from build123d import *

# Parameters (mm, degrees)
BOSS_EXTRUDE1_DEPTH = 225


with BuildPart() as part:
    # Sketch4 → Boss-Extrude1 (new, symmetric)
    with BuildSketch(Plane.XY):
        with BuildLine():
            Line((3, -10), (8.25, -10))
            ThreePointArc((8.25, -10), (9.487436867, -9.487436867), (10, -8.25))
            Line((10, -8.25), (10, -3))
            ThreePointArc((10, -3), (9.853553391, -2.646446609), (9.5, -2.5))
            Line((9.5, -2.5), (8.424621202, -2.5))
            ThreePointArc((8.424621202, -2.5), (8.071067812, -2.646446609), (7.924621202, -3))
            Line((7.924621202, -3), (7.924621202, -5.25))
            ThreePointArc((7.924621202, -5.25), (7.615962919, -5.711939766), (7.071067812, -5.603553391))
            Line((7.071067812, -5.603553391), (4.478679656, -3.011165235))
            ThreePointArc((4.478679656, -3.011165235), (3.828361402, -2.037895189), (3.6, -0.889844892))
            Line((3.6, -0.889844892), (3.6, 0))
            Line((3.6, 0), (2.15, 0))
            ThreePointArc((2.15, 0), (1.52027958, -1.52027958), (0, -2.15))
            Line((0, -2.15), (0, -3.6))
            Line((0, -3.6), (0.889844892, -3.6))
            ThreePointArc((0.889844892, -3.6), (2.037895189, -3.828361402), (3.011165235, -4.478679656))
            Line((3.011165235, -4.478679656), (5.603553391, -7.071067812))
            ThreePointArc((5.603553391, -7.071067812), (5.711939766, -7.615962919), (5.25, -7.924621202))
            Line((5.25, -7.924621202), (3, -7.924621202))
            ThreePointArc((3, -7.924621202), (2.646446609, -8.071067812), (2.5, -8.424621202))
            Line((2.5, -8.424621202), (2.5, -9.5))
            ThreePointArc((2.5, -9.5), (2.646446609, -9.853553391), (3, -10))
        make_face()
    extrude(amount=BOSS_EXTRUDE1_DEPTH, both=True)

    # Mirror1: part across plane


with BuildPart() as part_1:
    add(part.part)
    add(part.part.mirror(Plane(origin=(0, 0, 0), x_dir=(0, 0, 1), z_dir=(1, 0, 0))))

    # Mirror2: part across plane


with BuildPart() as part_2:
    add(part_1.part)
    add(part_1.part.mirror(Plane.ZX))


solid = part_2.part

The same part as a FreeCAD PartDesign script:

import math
import FreeCAD as App
import Part
import Sketcher
from FreeCAD import Vector

doc = App.newDocument("Part")
params = doc.addObject("Spreadsheet::Sheet", "Params")
for row, (alias, value) in enumerate([
    ("sketch1_radius", "3 mm"),
    ("sketch1_radius2", "0.5 mm"),
    ("sketch1_radius3", "1.75 mm"),
    ("sketch1_radius4", "2.15 mm"),
    ("sketch1_width", "1.45 mm"),
    ("pad1_length", "450 mm"),
], start=1):
    params.set(f"A{row}", alias)
    params.set(f"B{row}", "=" + value)
    params.setAlias(f"B{row}", alias)

body = doc.addObject("PartDesign::Body", "Body")

# Sketch on XY plane
sketch1 = body.newObject("Sketcher::SketchObject", "Sketch")
sketch1.AttachmentSupport = (doc.getObject("XY_Plane"), [""])
sketch1.MapMode = "FlatFace"
sketch1.addGeometry([
    Part.LineSegment(Vector(3, -10, 0), Vector(8.25, -10, 0)),  # 0
    Part.ArcOfCircle(Part.Circle(Vector(8.25, -8.25, 0), Vector(0, 0, 1), 1.75), math.radians(-90), math.radians(0)),  # 1
    Part.LineSegment(Vector(10, -8.25, 0), Vector(10, -3, 0)),  # 2
    Part.ArcOfCircle(Part.Circle(Vector(9.5, -3, 0), Vector(0, 0, 1), 0.5), math.radians(0), math.radians(90)),  # 3
    Part.LineSegment(Vector(9.5, -2.5, 0), Vector(8.424621, -2.5, 0)),  # 4
    Part.ArcOfCircle(Part.Circle(Vector(8.424621, -3, 0), Vector(0, 0, 1), 0.5), math.radians(90), math.radians(180)),  # 5
    Part.LineSegment(Vector(7.924621, -3, 0), Vector(7.924621, -5.25, 0)),  # 6
    Part.ArcOfCircle(Part.Circle(Vector(7.424621, -5.25, 0), Vector(0, 0, 1), 0.5), math.radians(-135), math.radians(0)),  # 7
    Part.LineSegment(Vector(7.071068, -5.603553, 0), Vector(4.47868, -3.011165, 0)),  # 8
    Part.ArcOfCircle(Part.Circle(Vector(6.6, -0.889845, 0), Vector(0, 0, 1), 3), math.radians(180), math.radians(225)),  # 9
    Part.LineSegment(Vector(3.6, -0.889845, 0), Vector(3.6, 0, 0)),  # 10
    Part.LineSegment(Vector(3.6, 0, 0), Vector(2.15, 0, 0)),  # 11
    Part.ArcOfCircle(Part.Circle(Vector(0, 0, 0), Vector(0, 0, 1), 2.15), math.radians(-90), math.radians(0)),  # 12
    Part.LineSegment(Vector(0, -2.15, 0), Vector(0, -3.6, 0)),  # 13
    Part.LineSegment(Vector(0, -3.6, 0), Vector(0.889845, -3.6, 0)),  # 14
    Part.ArcOfCircle(Part.Circle(Vector(0.889845, -6.6, 0), Vector(0, 0, 1), 3), math.radians(45), math.radians(90)),  # 15
    Part.LineSegment(Vector(3.011165, -4.47868, 0), Vector(5.603553, -7.071068, 0)),  # 16
    Part.ArcOfCircle(Part.Circle(Vector(5.25, -7.424621, 0), Vector(0, 0, 1), 0.5), math.radians(-90), math.radians(45)),  # 17
    Part.LineSegment(Vector(5.25, -7.924621, 0), Vector(3, -7.924621, 0)),  # 18
    Part.ArcOfCircle(Part.Circle(Vector(3, -8.424621, 0), Vector(0, 0, 1), 0.5), math.radians(90), math.radians(180)),  # 19
    Part.LineSegment(Vector(2.5, -8.424621, 0), Vector(2.5, -9.5, 0)),  # 20
    Part.ArcOfCircle(Part.Circle(Vector(3, -9.5, 0), Vector(0, 0, 1), 0.5), math.radians(180), math.radians(270)),  # 21
], False)
sketch1.addConstraint([
    Sketcher.Constraint("Tangent", 0, 2, 1, 1),
    Sketcher.Constraint("Tangent", 1, 2, 2, 1),
    Sketcher.Constraint("Tangent", 2, 2, 3, 1),
    Sketcher.Constraint("Tangent", 3, 2, 4, 1),
    Sketcher.Constraint("Tangent", 4, 2, 5, 1),
    Sketcher.Constraint("Tangent", 5, 2, 6, 1),
    Sketcher.Constraint("Tangent", 6, 2, 7, 2),
    Sketcher.Constraint("Tangent", 7, 1, 8, 1),
    Sketcher.Constraint("Tangent", 8, 2, 9, 2),
    Sketcher.Constraint("Tangent", 9, 1, 10, 1),
    Sketcher.Constraint("Coincident", 10, 2, 11, 1),
    Sketcher.Constraint("Coincident", 11, 2, 12, 2),
    Sketcher.Constraint("Coincident", 12, 1, 13, 1),
    Sketcher.Constraint("Coincident", 13, 2, 14, 1),
    Sketcher.Constraint("Tangent", 14, 2, 15, 2),
    Sketcher.Constraint("Tangent", 15, 1, 16, 1),
    Sketcher.Constraint("Tangent", 16, 2, 17, 2),
    Sketcher.Constraint("Tangent", 17, 1, 18, 1),
    Sketcher.Constraint("Tangent", 18, 2, 19, 1),
    Sketcher.Constraint("Tangent", 19, 2, 20, 1),
    Sketcher.Constraint("Tangent", 20, 2, 21, 1),
    Sketcher.Constraint("Tangent", 21, 2, 0, 1),
    Sketcher.Constraint("Horizontal", 0),
    Sketcher.Constraint("Vertical", 2),
    Sketcher.Constraint("Horizontal", 4),
    Sketcher.Constraint("Vertical", 6),
    Sketcher.Constraint("Vertical", 10),
    Sketcher.Constraint("Horizontal", 11),
    Sketcher.Constraint("Vertical", 13),
    Sketcher.Constraint("Horizontal", 14),
    Sketcher.Constraint("Horizontal", 18),
    Sketcher.Constraint("Vertical", 20),
    Sketcher.Constraint("Coincident", 12, 3, -1, 1),
    Sketcher.Constraint("Equal", 3, 5),
    Sketcher.Constraint("Equal", 5, 7),
    Sketcher.Constraint("Equal", 9, 15),
    Sketcher.Constraint("Equal", 7, 17),
    Sketcher.Constraint("Equal", 17, 19),
    Sketcher.Constraint("Equal", 19, 21),
    Sketcher.Constraint("PointOnObject", 10, 2, -1),
    Sketcher.Constraint("PointOnObject", 12, 1, -2),
    Sketcher.Constraint("Parallel", 8, 16),
    Sketcher.Constraint("Equal", 0, 2),
    Sketcher.Constraint("Equal", 18, 6),
    Sketcher.Constraint("Equal", 14, 10),
    Sketcher.Constraint("Equal", 11, 13),
    Sketcher.Constraint("Equal", 4, 20),
    Sketcher.Constraint("Equal", 8, 16),
    Sketcher.Constraint("Radius", 9, 3.0),
    Sketcher.Constraint("Radius", 3, 0.5),
    Sketcher.Constraint("Radius", 1, 1.75),
    Sketcher.Constraint("Radius", 12, 2.15),
    Sketcher.Constraint("DistanceY", 3, 3, -1, 1, 3.0),
    Sketcher.Constraint("DistanceY", 0, 2, -1, 1, 10.0),
    Sketcher.Constraint("DistanceY", 1, 3, 7, 3, 3.0),
    Sketcher.Constraint("DistanceX", 11, 2, 11, 1, 1.45),
    Sketcher.Constraint("DistanceX", 4, 2, 4, 1, 1.075379),
])
sketch1.setExpression("Constraints[48]", "Params.sketch1_radius")
sketch1.setExpression("Constraints[49]", "Params.sketch1_radius2")
sketch1.setExpression("Constraints[50]", "Params.sketch1_radius3")
sketch1.setExpression("Constraints[51]", "Params.sketch1_radius4")
sketch1.setExpression("Constraints[55]", "Params.sketch1_width")
pad1 = body.newObject("PartDesign::Pad", "Pad")
pad1.Profile = sketch1
pad1.setExpression("Length", "Params.pad1_length")
pad1.Midplane = True
body2 = doc.addObject("PartDesign::Body", "Body001")
doc.recompute()

body2.BaseFeature = body
doc.recompute()

mirroring = doc.addObject("Part::Mirroring", "Mirroring")
mirroring.Source = body
mirroring.Base = Vector(0, 0, 0)
mirroring.Normal = Vector(1, 0, 0)
body3 = doc.addObject("PartDesign::Body", "Body002")
body3.BaseFeature = mirroring
boolean = body2.newObject("PartDesign::Boolean", "Boolean")
boolean.Type = "Fuse"
boolean.addObjects([body3])
doc.recompute()
body4 = doc.addObject("PartDesign::Body", "Body003")
doc.recompute()

body4.BaseFeature = body2
doc.recompute()

mirroring2 = doc.addObject("Part::Mirroring", "Mirroring001")
mirroring2.Source = body2
mirroring2.Base = Vector(0, 0, 0)
mirroring2.Normal = Vector(0, 1, 0)
body5 = doc.addObject("PartDesign::Body", "Body004")
body5.BaseFeature = mirroring2
boolean2 = body4.newObject("PartDesign::Boolean", "Boolean001")
boolean2.Type = "Fuse"
boolean2.addObjects([body5])
doc.recompute()
mirroring.Visibility = False
mirroring2.Visibility = False

doc.recompute()
